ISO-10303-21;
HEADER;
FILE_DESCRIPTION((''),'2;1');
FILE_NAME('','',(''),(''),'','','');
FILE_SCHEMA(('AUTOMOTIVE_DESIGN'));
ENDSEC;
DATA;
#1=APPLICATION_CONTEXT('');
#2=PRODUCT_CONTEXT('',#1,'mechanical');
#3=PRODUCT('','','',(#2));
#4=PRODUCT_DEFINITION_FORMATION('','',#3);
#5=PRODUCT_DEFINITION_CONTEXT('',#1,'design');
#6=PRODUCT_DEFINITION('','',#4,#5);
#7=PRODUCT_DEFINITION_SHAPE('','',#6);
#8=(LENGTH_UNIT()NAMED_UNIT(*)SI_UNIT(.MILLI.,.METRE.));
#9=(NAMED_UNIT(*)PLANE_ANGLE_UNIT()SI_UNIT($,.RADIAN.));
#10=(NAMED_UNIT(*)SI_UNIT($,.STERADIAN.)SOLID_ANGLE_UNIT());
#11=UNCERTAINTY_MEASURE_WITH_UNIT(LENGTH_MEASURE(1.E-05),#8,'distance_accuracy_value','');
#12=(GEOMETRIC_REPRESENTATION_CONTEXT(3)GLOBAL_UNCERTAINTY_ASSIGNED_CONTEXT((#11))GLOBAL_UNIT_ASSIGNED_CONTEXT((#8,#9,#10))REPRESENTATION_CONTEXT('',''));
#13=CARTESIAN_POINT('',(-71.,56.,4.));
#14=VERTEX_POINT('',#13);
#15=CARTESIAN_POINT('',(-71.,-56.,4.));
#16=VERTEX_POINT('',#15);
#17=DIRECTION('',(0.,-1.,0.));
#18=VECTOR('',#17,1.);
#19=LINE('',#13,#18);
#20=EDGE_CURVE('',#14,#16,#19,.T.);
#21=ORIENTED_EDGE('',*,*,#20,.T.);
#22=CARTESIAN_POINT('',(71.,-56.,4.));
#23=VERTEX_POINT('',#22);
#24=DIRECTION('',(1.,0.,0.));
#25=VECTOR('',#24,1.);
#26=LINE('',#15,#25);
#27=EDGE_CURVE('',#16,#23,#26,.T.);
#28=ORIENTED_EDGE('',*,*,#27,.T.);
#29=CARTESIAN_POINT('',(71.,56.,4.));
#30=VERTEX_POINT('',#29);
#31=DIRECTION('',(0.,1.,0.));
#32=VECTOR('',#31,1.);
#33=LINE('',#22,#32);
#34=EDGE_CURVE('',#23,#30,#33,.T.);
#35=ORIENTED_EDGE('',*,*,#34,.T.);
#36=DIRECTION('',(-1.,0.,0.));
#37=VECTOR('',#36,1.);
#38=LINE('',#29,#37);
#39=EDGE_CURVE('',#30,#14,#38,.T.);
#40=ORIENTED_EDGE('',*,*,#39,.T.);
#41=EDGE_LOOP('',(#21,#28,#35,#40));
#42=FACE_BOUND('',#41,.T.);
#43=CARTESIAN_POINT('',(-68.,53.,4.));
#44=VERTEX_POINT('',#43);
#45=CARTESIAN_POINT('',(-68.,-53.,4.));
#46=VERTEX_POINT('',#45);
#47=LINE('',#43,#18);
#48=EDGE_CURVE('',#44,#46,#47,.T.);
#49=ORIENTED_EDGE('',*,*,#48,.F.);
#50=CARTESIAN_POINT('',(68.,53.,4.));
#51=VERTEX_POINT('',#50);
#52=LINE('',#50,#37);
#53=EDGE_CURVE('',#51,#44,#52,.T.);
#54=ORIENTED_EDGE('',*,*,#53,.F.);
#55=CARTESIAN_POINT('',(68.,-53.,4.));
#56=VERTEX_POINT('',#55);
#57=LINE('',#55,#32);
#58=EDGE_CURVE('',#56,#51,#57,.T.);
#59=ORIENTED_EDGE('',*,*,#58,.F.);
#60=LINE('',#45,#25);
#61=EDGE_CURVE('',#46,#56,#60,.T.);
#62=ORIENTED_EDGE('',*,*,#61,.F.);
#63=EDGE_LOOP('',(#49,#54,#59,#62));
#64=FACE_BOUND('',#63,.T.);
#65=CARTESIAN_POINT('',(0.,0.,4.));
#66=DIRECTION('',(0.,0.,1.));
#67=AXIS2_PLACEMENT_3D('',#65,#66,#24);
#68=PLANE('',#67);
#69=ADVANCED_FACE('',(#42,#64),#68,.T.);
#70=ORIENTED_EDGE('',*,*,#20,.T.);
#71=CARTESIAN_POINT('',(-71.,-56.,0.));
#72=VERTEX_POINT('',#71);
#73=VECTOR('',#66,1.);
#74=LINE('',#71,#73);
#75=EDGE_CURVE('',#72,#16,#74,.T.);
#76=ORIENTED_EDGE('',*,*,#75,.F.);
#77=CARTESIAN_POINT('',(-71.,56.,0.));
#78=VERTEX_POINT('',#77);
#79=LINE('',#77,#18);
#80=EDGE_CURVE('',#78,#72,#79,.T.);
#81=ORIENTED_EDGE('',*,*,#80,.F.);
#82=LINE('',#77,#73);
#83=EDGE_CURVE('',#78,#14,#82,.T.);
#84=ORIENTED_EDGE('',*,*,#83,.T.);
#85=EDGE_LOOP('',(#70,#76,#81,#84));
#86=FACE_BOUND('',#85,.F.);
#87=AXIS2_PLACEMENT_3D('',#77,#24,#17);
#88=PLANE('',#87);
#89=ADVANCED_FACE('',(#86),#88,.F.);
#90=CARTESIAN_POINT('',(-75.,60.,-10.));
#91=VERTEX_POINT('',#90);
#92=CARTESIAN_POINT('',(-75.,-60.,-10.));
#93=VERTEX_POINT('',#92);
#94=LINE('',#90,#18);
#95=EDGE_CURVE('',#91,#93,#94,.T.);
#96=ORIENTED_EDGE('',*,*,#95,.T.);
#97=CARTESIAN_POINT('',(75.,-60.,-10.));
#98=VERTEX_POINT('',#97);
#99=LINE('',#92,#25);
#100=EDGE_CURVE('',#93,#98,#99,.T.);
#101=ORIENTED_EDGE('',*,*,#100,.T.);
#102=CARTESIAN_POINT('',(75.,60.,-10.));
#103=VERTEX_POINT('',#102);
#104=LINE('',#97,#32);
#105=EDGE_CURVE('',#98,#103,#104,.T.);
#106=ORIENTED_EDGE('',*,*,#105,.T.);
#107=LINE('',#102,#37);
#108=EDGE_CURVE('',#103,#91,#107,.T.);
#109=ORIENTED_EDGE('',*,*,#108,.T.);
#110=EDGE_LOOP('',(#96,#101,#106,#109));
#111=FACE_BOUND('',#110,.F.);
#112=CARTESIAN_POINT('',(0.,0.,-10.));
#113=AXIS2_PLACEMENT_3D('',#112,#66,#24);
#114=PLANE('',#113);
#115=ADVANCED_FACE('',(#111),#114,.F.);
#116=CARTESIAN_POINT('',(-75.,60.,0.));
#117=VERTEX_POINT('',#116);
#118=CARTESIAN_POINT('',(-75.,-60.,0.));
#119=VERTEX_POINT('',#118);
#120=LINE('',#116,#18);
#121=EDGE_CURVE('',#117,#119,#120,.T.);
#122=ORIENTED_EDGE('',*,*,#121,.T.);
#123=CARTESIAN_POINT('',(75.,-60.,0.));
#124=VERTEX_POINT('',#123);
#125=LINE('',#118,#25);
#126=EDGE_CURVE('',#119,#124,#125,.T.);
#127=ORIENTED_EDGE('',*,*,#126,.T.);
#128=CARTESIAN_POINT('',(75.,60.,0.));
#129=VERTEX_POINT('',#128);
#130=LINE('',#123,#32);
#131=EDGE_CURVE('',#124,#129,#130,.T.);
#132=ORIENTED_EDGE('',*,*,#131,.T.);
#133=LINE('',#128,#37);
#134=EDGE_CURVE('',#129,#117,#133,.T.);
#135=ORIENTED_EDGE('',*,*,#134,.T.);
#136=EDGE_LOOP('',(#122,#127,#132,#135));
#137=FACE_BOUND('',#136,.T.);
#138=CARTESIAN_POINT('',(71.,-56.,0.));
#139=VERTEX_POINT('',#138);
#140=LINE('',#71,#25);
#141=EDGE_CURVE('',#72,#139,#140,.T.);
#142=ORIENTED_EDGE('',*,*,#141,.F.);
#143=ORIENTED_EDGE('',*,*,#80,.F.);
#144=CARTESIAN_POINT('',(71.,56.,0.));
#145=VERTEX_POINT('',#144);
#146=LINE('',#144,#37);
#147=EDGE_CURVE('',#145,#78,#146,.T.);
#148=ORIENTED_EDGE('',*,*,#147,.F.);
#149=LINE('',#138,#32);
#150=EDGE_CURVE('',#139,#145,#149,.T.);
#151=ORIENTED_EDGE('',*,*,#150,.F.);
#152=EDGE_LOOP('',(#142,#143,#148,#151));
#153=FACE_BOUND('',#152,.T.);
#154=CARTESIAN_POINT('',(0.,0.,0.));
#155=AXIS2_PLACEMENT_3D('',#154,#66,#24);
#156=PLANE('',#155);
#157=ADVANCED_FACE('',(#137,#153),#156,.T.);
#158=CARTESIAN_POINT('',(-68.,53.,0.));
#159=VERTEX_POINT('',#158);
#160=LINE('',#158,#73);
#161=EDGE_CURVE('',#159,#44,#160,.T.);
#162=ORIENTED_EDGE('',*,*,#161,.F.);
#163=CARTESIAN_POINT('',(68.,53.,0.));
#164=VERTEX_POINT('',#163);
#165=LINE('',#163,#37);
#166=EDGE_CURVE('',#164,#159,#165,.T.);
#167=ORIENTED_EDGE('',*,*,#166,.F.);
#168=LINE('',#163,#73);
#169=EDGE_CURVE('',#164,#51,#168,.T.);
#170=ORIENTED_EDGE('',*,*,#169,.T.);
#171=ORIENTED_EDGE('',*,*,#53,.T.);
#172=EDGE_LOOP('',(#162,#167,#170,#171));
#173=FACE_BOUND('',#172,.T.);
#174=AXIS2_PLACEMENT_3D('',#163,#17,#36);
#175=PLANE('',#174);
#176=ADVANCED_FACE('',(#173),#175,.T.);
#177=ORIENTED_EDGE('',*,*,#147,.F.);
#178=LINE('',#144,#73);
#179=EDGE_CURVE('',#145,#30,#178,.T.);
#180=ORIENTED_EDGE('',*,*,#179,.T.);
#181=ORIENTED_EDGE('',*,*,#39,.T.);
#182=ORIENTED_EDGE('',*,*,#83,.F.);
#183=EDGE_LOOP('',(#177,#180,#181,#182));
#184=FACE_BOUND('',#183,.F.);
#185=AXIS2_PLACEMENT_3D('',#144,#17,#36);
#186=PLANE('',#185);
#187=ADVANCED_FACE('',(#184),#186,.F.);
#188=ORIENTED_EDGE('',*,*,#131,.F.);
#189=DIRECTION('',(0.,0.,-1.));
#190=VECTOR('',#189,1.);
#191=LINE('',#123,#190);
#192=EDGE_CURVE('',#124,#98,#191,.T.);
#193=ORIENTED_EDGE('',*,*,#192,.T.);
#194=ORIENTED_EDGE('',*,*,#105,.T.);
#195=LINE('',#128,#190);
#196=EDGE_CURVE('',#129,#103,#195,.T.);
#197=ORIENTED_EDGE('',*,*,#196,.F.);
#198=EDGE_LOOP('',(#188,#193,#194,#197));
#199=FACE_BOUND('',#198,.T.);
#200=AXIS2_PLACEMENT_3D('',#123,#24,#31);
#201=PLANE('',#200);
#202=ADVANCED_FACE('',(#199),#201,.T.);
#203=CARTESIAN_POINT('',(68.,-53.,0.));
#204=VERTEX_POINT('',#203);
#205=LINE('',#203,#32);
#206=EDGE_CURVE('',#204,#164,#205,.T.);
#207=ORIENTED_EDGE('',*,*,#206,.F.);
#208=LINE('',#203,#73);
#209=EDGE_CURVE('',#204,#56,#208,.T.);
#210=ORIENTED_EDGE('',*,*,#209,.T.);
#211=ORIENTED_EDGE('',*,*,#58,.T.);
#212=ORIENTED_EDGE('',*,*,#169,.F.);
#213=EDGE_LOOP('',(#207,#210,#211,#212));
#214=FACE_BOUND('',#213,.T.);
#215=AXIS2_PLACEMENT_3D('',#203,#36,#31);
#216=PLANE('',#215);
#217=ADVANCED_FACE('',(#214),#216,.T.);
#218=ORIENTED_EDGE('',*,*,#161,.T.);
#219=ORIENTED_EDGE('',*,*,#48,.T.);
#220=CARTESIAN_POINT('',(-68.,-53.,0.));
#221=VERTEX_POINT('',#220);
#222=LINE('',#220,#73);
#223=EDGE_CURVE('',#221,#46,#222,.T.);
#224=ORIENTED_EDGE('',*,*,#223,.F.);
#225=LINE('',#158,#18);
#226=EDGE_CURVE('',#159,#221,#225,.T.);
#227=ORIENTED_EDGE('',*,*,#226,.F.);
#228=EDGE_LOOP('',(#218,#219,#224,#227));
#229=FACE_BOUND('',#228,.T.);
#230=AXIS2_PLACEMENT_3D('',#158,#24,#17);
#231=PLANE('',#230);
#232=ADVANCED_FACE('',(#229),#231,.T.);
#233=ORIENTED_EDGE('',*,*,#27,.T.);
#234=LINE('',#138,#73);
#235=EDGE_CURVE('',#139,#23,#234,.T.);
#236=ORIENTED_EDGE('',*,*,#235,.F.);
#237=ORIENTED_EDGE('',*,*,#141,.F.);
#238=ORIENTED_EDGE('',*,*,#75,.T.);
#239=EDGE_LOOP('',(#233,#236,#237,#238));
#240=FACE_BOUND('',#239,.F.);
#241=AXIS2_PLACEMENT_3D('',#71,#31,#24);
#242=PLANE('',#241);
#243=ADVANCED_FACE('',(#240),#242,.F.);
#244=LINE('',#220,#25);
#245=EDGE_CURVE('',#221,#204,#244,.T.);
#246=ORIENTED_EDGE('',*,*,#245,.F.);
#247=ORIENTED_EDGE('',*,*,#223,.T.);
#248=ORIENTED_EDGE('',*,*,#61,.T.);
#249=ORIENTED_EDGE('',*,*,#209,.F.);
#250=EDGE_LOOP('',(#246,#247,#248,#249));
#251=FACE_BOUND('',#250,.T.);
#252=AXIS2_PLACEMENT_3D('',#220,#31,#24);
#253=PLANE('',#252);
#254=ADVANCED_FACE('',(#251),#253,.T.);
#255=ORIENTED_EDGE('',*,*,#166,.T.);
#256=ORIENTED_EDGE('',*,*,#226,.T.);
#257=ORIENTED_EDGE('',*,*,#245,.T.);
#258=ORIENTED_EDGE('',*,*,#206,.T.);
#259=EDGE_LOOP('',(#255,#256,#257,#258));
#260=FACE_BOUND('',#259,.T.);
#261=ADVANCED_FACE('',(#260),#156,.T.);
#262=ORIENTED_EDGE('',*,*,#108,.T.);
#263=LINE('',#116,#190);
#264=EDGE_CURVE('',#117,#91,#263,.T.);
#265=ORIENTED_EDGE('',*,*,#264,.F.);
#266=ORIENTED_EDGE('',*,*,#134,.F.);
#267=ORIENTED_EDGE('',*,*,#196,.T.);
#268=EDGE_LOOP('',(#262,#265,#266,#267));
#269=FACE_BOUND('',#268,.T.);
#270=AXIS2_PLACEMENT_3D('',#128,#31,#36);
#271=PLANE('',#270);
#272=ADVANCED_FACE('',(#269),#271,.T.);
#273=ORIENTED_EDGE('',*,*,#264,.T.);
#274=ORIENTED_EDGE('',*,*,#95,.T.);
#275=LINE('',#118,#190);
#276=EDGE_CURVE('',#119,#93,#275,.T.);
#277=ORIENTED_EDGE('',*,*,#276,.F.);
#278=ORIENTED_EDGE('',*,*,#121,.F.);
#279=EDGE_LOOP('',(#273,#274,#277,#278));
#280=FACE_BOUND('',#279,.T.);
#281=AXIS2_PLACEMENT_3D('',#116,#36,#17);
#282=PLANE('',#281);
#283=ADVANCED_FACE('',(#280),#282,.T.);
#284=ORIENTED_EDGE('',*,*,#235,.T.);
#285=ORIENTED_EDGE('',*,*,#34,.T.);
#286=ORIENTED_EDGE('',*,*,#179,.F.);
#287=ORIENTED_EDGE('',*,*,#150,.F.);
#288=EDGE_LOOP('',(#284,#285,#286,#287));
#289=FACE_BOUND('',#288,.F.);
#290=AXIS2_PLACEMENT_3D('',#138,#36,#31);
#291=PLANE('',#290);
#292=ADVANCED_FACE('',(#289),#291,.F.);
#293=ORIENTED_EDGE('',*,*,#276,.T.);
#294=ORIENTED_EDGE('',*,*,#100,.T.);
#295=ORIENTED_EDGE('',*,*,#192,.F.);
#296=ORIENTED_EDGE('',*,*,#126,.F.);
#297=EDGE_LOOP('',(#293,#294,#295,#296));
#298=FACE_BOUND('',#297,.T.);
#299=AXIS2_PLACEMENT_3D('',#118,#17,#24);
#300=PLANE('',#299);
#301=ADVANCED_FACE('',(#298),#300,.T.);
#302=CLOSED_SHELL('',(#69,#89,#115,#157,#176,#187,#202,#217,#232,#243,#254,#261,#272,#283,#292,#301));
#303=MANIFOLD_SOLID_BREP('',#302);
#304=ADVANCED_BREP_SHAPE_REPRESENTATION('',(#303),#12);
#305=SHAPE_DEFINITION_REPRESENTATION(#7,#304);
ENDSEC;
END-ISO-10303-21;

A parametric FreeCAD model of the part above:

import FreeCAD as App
import Part
import Sketcher


def add_polygon(sketch, points):
    """Adds a closed chain of lines whose ends are joined by coincident constraints."""
    first, n = sketch.GeometryCount, len(points)
    for a, b in zip(points, points[1:] + points[:1]):
        sketch.addGeometry(Part.LineSegment(App.Vector(*a, 0), App.Vector(*b, 0)), False)
    for i in range(n):
        sketch.addConstraint(Sketcher.Constraint("Coincident", first + i, 2, first + (i + 1) % n, 1))

doc = App.newDocument("Part")
body = doc.addObject("PartDesign::Body", "Body")

sketch1 = body.newObject("Sketcher::SketchObject", "Sketch")
sketch1.AttachmentSupport = (doc.getObject("XY_Plane"), [""])
sketch1.MapMode = "FlatFace"
add_polygon(sketch1, [(-75, 60), (-75, -60), (75, -60), (75, 60)])
sketch1.addConstraint(Sketcher.Constraint("Vertical", 0))
sketch1.addConstraint(Sketcher.Constraint("Horizontal", 1))
sketch1.addConstraint(Sketcher.Constraint("Vertical", 2))
sketch1.addConstraint(Sketcher.Constraint("Horizontal", 3))
sketch1.addConstraint(Sketcher.Constraint("Symmetric", 0, 2, 2, 2, -1, 1))
sketch1.addConstraint(Sketcher.Constraint("DistanceX", 1, 1, 1, 2, 150.0))
sketch1.addConstraint(Sketcher.Constraint("DistanceY", 0, 2, 0, 1, 120.0))
pad1 = body.newObject("PartDesign::Pad", "Pad")
pad1.Profile = sketch1
pad1.Length = 10
pad1.Reversed = True

sketch2 = body.newObject("Sketcher::SketchObject", "Sketch001")
sketch2.AttachmentSupport = (doc.getObject("XY_Plane"), [""])
sketch2.MapMode = "FlatFace"
add_polygon(sketch2, [(-71, 56), (-71, -56), (71, -56), (71, 56)])
add_polygon(sketch2, [(68, -53), (-68, -53), (-68, 53), (68, 53)])
sketch2.addConstraint(Sketcher.Constraint("Vertical", 0))
sketch2.addConstraint(Sketcher.Constraint("Horizontal", 1))
sketch2.addConstraint(Sketcher.Constraint("Vertical", 2))
sketch2.addConstraint(Sketcher.Constraint("Horizontal", 3))
sketch2.addConstraint(Sketcher.Constraint("Horizontal", 4))
sketch2.addConstraint(Sketcher.Constraint("Vertical", 5))
sketch2.addConstraint(Sketcher.Constraint("Horizontal", 6))
sketch2.addConstraint(Sketcher.Constraint("Vertical", 7))
sketch2.addConstraint(Sketcher.Constraint("Symmetric", 0, 2, 2, 2, -1, 1))
sketch2.addConstraint(Sketcher.Constraint("Symmetric", 4, 2, 6, 2, -1, 1))
sketch2.addConstraint(Sketcher.Constraint("DistanceX", 0, 2, 4, 2, 3.0))
sketch2.addConstraint(Sketcher.Constraint("DistanceY", 0, 2, 4, 2, 3.0))
sketch2.addConstraint(Sketcher.Constraint("DistanceX", 1, 1, 1, 2, 142.0))
sketch2.addConstraint(Sketcher.Constraint("DistanceY", 0, 2, 0, 1, 112.0))
pad2 = body.newObject("PartDesign::Pad", "Pad001")
pad2.Profile = sketch2
pad2.Length = 4

doc.recompute()
